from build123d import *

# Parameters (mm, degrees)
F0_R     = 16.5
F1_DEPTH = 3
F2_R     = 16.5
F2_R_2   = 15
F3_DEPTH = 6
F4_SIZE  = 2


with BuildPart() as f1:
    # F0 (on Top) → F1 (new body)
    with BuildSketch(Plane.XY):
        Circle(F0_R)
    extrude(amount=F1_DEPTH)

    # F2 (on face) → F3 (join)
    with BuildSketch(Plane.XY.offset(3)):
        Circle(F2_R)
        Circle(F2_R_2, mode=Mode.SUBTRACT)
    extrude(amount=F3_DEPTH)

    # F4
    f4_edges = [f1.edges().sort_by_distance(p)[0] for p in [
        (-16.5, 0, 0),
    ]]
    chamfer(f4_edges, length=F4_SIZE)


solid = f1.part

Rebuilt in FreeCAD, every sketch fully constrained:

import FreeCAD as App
import Part
import Sketcher


def edges_at(feature, points):
    """Names of the edges that pass closest to the given points."""
    edges = feature.Shape.Edges
    near = lambda p: min(range(len(edges)), key=lambda i: edges[i].distToShape(Part.Vertex(*p))[0])
    return sorted({f"Edge{near(p) + 1}" for p in points})

doc = App.newDocument("Part")
body = doc.addObject("PartDesign::Body", "Body")

# Sketch on XY plane
sketch1 = doc.addObject("Sketcher::SketchObject", "Sketch")
body.addObject(sketch1)
sketch1.AttachmentSupport = (doc.XY_Plane, [""])
sketch1.MapMode = "FlatFace"
sketch1.addGeometry(Part.Circle(App.Vector(0, 0, 0), App.Vector(0, 0, 1), 16.5), False)
sketch1.addConstraint(Sketcher.Constraint("Coincident", 0, 3, -1, 1))
sketch1.addConstraint(Sketcher.Constraint("Diameter", 0, 33.0))
pad1 = doc.addObject("PartDesign::Pad", "Pad")
body.addObject(pad1)
pad1.Profile = sketch1
pad1.Length = 3

# Sketch on XY plane
sketch2 = doc.addObject("Sketcher::SketchObject", "Sketch001")
body.addObject(sketch2)
sketch2.AttachmentSupport = (doc.XY_Plane, [""])
sketch2.MapMode = "FlatFace"
sketch2.AttachmentOffset = App.Placement(App.Vector(0, 0, 3), App.Rotation())
sketch2.addGeometry(Part.Circle(App.Vector(0, 0, 0), App.Vector(0, 0, 1), 16.5), False)
sketch2.addGeometry(Part.Circle(App.Vector(0, 0, 0), App.Vector(0, 0, 1), 15), False)
sketch2.addConstraint(Sketcher.Constraint("Coincident", 0, 3, -1, 1))
sketch2.addConstraint(Sketcher.Constraint("Coincident", 1, 3, -1, 1))
sketch2.addConstraint(Sketcher.Constraint("Diameter", 0, 33.0))
sketch2.addConstraint(Sketcher.Constraint("Diameter", 1, 30.0))
pad2 = doc.addObject("PartDesign::Pad", "Pad001")
body.addObject(pad2)
pad2.Profile = sketch2
pad2.Length = 6
doc.recompute()

chamfer = doc.addObject("PartDesign::Chamfer", "Chamfer")
body.addObject(chamfer)
chamfer.Base = (pad2, edges_at(pad2, [(-16.5, 0, 0)]))
chamfer.Size = 2

doc.recompute()
